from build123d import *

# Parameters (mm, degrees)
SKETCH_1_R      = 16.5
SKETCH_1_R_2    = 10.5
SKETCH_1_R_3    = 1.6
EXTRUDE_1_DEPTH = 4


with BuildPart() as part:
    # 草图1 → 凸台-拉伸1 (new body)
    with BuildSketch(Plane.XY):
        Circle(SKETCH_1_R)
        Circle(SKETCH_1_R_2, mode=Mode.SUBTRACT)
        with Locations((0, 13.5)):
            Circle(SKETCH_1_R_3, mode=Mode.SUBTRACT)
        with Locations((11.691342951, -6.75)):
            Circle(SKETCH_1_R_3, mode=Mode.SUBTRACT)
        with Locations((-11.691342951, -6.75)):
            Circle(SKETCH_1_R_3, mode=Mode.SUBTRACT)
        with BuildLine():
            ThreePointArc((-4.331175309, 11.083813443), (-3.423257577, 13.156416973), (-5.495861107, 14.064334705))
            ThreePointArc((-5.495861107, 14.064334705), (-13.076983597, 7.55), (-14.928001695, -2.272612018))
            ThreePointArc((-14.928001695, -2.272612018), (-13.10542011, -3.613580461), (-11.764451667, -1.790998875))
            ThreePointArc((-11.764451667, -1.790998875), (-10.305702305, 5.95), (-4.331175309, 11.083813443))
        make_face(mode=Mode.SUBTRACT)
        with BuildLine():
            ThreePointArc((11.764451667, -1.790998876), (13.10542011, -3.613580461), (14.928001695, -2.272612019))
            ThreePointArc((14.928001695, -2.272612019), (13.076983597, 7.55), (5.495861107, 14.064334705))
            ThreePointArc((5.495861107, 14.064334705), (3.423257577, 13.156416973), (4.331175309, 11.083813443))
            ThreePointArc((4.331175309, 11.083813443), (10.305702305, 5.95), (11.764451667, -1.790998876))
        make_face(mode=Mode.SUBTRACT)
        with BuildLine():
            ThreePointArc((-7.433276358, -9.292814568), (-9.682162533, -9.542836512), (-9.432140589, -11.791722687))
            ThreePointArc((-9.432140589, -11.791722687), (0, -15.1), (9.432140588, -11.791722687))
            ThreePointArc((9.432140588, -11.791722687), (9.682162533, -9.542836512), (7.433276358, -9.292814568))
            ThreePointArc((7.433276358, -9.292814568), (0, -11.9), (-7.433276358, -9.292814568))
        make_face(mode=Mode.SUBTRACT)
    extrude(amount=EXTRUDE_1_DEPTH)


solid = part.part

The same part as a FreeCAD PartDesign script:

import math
import FreeCAD as App
import Part
import Sketcher

V = App.Vector
Q = App.Units.Quantity

doc = App.newDocument("Part")
body = doc.addObject("PartDesign::Body", "Body")

# Sketch on XY plane
sketch1 = body.newObject("Sketcher::SketchObject", "Sketch")
sketch1.AttachmentSupport = (doc.getObject("XY_Plane"), [""])
sketch1.MapMode = "FlatFace"
sketch1.addGeometry(Part.Circle(V(0, 0, 0), V(0, 0, 1), 16.5), False)
sketch1.addGeometry(Part.ArcOfCircle(Part.Circle(V(-8.4, -10.5, 0), V(0, 0, 1), 1.6), math.radians(51), math.radians(231)), False)
sketch1.addGeometry(Part.ArcOfCircle(Part.Circle(V(0, 0, 0), V(0, 0, 1), 11.9), math.radians(-129), math.radians(-51)), False)
sketch1.addGeometry(Part.ArcOfCircle(Part.Circle(V(8.4, -10.5, 0), V(0, 0, 1), 1.6), math.radians(-51), math.radians(129)), False)
sketch1.addGeometry(Part.ArcOfCircle(Part.Circle(V(0, 0, 0), V(0, 0, 1), 15.1), math.radians(-129), math.radians(-51)), False)
sketch1.addGeometry(Part.Circle(V(-11.7, -6.8, 0), V(0, 0, 1), 1.6), False)
sketch1.addGeometry(Part.Circle(V(0, 0, 0), V(0, 0, 1), 10.5), False)
sketch1.addGeometry(Part.Circle(V(11.7, -6.8, 0), V(0, 0, 1), 1.6), False)
sketch1.addGeometry(Part.ArcOfCircle(Part.Circle(V(-4.9, 12.6, 0), V(0, 0, 1), 1.6), math.radians(-69), math.radians(111)), False)
sketch1.addGeometry(Part.ArcOfCircle(Part.Circle(V(0, 0, 0), V(0, 0, 1), 11.9), math.radians(111), math.radians(189)), False)
sketch1.addGeometry(Part.ArcOfCircle(Part.Circle(V(-13.3, -2, 0), V(0, 0, 1), 1.6), math.radians(-171), math.radians(9)), False)
sketch1.addGeometry(Part.ArcOfCircle(Part.Circle(V(0, 0, 0), V(0, 0, 1), 15.1), math.radians(111), math.radians(189)), False)
sketch1.addGeometry(Part.Circle(V(0, 13.5, 0), V(0, 0, 1), 1.6), False)
sketch1.addGeometry(Part.ArcOfCircle(Part.Circle(V(13.3, -2, 0), V(0, 0, 1), 1.6), math.radians(171), math.radians(351)), False)
sketch1.addGeometry(Part.ArcOfCircle(Part.Circle(V(0, 0, 0), V(0, 0, 1), 11.9), math.radians(-9), math.radians(69)), False)
sketch1.addGeometry(Part.ArcOfCircle(Part.Circle(V(4.9, 12.6, 0), V(0, 0, 1), 1.6), math.radians(69), math.radians(249)), False)
sketch1.addGeometry(Part.ArcOfCircle(Part.Circle(V(0, 0, 0), V(0, 0, 1), 15.1), math.radians(-9), math.radians(69)), False)
sketch1.addConstraint(Sketcher.Constraint("Tangent", 1, 1, 2, 1))
sketch1.addConstraint(Sketcher.Constraint("Tangent", 2, 2, 3, 2))
sketch1.addConstraint(Sketcher.Constraint("Tangent", 3, 1, 4, 2))
sketch1.addConstraint(Sketcher.Constraint("Tangent", 4, 1, 1, 2))
sketch1.addConstraint(Sketcher.Constraint("Tangent", 8, 1, 9, 1))
sketch1.addConstraint(Sketcher.Constraint("Tangent", 9, 2, 10, 2))
sketch1.addConstraint(Sketcher.Constraint("Tangent", 10, 1, 11, 2))
sketch1.addConstraint(Sketcher.Constraint("Tangent", 11, 1, 8, 2))
sketch1.addConstraint(Sketcher.Constraint("Tangent", 13, 1, 14, 1))
sketch1.addConstraint(Sketcher.Constraint("Tangent", 14, 2, 15, 2))
sketch1.addConstraint(Sketcher.Constraint("Tangent", 15, 1, 16, 2))
sketch1.addConstraint(Sketcher.Constraint("Tangent", 16, 1, 13, 2))
sketch1.addConstraint(Sketcher.Constraint("Coincident", 0, 3, -1, 1))
sketch1.addConstraint(Sketcher.Constraint("Coincident", 2, 3, -1, 1))
sketch1.addConstraint(Sketcher.Constraint("Coincident", 4, 3, -1, 1))
sketch1.addConstraint(Sketcher.Constraint("Coincident", 6, 3, -1, 1))
sketch1.addConstraint(Sketcher.Constraint("Coincident", 9, 3, -1, 1))
sketch1.addConstraint(Sketcher.Constraint("Coincident", 11, 3, -1, 1))
sketch1.addConstraint(Sketcher.Constraint("Coincident", 14, 3, -1, 1))
sketch1.addConstraint(Sketcher.Constraint("Coincident", 16, 3, -1, 1))
sketch1.addConstraint(Sketcher.Constraint("Equal", 3, 5))
sketch1.addConstraint(Sketcher.Constraint("Equal", 5, 7))
sketch1.addConstraint(Sketcher.Constraint("Equal", 7, 8))
sketch1.addConstraint(Sketcher.Constraint("Equal", 2, 9))
sketch1.addConstraint(Sketcher.Constraint("Equal", 10, 12))
sketch1.addConstraint(Sketcher.Constraint("Equal", 12, 13))
sketch1.addConstraint(Sketcher.Constraint("Equal", 9, 14))
sketch1.addConstraint(Sketcher.Constraint("Symmetric", 5, 3, 7, 3, -2))
sketch1.addConstraint(Sketcher.Constraint("PointOnObject", 12, 3, -2))
sketch1.addConstraint(Sketcher.Constraint("Horizontal", 1, 3, 3, 3))
sketch1.addConstraint(Sketcher.Constraint("Horizontal", 10, 3, 13, 3))
sketch1.addConstraint(Sketcher.Constraint("Horizontal", 8, 3, 15, 3))
sketch1.addConstraint(Sketcher.Constraint("Diameter", 0, Q("33 mm")))
sketch1.addConstraint(Sketcher.Constraint("Diameter", 6, Q("21 mm")))
sketch1.addConstraint(Sketcher.Constraint("Diameter", 5, Q("3.2 mm")))
sketch1.addConstraint(Sketcher.Constraint("Radius", 2, Q("11.9 mm")))
sketch1.addConstraint(Sketcher.Constraint("DistanceY", -1, 1, 12, 3, Q("13.5 mm")))
sketch1.addConstraint(Sketcher.Constraint("DistanceY", 5, 3, -1, 1, Q("6.75 mm")))
sketch1.addConstraint(Sketcher.Constraint("DistanceY", 9, 2, -1, 1, Q("1.790999 mm")))
sketch1.addConstraint(Sketcher.Constraint("DistanceX", 1, 3, -1, 1, Q("8.432708 mm")))
sketch1.addConstraint(Sketcher.Constraint("DistanceX", 8, 3, -1, 1, Q("4.913518 mm")))
sketch1.addConstraint(Sketcher.Constraint("DistanceX", 5, 3, 3, 3, Q("20.124051 mm")))
pad1 = body.newObject("PartDesign::Pad", "Pad")
pad1.Profile = sketch1
pad1.Length = 4

doc.recompute()
